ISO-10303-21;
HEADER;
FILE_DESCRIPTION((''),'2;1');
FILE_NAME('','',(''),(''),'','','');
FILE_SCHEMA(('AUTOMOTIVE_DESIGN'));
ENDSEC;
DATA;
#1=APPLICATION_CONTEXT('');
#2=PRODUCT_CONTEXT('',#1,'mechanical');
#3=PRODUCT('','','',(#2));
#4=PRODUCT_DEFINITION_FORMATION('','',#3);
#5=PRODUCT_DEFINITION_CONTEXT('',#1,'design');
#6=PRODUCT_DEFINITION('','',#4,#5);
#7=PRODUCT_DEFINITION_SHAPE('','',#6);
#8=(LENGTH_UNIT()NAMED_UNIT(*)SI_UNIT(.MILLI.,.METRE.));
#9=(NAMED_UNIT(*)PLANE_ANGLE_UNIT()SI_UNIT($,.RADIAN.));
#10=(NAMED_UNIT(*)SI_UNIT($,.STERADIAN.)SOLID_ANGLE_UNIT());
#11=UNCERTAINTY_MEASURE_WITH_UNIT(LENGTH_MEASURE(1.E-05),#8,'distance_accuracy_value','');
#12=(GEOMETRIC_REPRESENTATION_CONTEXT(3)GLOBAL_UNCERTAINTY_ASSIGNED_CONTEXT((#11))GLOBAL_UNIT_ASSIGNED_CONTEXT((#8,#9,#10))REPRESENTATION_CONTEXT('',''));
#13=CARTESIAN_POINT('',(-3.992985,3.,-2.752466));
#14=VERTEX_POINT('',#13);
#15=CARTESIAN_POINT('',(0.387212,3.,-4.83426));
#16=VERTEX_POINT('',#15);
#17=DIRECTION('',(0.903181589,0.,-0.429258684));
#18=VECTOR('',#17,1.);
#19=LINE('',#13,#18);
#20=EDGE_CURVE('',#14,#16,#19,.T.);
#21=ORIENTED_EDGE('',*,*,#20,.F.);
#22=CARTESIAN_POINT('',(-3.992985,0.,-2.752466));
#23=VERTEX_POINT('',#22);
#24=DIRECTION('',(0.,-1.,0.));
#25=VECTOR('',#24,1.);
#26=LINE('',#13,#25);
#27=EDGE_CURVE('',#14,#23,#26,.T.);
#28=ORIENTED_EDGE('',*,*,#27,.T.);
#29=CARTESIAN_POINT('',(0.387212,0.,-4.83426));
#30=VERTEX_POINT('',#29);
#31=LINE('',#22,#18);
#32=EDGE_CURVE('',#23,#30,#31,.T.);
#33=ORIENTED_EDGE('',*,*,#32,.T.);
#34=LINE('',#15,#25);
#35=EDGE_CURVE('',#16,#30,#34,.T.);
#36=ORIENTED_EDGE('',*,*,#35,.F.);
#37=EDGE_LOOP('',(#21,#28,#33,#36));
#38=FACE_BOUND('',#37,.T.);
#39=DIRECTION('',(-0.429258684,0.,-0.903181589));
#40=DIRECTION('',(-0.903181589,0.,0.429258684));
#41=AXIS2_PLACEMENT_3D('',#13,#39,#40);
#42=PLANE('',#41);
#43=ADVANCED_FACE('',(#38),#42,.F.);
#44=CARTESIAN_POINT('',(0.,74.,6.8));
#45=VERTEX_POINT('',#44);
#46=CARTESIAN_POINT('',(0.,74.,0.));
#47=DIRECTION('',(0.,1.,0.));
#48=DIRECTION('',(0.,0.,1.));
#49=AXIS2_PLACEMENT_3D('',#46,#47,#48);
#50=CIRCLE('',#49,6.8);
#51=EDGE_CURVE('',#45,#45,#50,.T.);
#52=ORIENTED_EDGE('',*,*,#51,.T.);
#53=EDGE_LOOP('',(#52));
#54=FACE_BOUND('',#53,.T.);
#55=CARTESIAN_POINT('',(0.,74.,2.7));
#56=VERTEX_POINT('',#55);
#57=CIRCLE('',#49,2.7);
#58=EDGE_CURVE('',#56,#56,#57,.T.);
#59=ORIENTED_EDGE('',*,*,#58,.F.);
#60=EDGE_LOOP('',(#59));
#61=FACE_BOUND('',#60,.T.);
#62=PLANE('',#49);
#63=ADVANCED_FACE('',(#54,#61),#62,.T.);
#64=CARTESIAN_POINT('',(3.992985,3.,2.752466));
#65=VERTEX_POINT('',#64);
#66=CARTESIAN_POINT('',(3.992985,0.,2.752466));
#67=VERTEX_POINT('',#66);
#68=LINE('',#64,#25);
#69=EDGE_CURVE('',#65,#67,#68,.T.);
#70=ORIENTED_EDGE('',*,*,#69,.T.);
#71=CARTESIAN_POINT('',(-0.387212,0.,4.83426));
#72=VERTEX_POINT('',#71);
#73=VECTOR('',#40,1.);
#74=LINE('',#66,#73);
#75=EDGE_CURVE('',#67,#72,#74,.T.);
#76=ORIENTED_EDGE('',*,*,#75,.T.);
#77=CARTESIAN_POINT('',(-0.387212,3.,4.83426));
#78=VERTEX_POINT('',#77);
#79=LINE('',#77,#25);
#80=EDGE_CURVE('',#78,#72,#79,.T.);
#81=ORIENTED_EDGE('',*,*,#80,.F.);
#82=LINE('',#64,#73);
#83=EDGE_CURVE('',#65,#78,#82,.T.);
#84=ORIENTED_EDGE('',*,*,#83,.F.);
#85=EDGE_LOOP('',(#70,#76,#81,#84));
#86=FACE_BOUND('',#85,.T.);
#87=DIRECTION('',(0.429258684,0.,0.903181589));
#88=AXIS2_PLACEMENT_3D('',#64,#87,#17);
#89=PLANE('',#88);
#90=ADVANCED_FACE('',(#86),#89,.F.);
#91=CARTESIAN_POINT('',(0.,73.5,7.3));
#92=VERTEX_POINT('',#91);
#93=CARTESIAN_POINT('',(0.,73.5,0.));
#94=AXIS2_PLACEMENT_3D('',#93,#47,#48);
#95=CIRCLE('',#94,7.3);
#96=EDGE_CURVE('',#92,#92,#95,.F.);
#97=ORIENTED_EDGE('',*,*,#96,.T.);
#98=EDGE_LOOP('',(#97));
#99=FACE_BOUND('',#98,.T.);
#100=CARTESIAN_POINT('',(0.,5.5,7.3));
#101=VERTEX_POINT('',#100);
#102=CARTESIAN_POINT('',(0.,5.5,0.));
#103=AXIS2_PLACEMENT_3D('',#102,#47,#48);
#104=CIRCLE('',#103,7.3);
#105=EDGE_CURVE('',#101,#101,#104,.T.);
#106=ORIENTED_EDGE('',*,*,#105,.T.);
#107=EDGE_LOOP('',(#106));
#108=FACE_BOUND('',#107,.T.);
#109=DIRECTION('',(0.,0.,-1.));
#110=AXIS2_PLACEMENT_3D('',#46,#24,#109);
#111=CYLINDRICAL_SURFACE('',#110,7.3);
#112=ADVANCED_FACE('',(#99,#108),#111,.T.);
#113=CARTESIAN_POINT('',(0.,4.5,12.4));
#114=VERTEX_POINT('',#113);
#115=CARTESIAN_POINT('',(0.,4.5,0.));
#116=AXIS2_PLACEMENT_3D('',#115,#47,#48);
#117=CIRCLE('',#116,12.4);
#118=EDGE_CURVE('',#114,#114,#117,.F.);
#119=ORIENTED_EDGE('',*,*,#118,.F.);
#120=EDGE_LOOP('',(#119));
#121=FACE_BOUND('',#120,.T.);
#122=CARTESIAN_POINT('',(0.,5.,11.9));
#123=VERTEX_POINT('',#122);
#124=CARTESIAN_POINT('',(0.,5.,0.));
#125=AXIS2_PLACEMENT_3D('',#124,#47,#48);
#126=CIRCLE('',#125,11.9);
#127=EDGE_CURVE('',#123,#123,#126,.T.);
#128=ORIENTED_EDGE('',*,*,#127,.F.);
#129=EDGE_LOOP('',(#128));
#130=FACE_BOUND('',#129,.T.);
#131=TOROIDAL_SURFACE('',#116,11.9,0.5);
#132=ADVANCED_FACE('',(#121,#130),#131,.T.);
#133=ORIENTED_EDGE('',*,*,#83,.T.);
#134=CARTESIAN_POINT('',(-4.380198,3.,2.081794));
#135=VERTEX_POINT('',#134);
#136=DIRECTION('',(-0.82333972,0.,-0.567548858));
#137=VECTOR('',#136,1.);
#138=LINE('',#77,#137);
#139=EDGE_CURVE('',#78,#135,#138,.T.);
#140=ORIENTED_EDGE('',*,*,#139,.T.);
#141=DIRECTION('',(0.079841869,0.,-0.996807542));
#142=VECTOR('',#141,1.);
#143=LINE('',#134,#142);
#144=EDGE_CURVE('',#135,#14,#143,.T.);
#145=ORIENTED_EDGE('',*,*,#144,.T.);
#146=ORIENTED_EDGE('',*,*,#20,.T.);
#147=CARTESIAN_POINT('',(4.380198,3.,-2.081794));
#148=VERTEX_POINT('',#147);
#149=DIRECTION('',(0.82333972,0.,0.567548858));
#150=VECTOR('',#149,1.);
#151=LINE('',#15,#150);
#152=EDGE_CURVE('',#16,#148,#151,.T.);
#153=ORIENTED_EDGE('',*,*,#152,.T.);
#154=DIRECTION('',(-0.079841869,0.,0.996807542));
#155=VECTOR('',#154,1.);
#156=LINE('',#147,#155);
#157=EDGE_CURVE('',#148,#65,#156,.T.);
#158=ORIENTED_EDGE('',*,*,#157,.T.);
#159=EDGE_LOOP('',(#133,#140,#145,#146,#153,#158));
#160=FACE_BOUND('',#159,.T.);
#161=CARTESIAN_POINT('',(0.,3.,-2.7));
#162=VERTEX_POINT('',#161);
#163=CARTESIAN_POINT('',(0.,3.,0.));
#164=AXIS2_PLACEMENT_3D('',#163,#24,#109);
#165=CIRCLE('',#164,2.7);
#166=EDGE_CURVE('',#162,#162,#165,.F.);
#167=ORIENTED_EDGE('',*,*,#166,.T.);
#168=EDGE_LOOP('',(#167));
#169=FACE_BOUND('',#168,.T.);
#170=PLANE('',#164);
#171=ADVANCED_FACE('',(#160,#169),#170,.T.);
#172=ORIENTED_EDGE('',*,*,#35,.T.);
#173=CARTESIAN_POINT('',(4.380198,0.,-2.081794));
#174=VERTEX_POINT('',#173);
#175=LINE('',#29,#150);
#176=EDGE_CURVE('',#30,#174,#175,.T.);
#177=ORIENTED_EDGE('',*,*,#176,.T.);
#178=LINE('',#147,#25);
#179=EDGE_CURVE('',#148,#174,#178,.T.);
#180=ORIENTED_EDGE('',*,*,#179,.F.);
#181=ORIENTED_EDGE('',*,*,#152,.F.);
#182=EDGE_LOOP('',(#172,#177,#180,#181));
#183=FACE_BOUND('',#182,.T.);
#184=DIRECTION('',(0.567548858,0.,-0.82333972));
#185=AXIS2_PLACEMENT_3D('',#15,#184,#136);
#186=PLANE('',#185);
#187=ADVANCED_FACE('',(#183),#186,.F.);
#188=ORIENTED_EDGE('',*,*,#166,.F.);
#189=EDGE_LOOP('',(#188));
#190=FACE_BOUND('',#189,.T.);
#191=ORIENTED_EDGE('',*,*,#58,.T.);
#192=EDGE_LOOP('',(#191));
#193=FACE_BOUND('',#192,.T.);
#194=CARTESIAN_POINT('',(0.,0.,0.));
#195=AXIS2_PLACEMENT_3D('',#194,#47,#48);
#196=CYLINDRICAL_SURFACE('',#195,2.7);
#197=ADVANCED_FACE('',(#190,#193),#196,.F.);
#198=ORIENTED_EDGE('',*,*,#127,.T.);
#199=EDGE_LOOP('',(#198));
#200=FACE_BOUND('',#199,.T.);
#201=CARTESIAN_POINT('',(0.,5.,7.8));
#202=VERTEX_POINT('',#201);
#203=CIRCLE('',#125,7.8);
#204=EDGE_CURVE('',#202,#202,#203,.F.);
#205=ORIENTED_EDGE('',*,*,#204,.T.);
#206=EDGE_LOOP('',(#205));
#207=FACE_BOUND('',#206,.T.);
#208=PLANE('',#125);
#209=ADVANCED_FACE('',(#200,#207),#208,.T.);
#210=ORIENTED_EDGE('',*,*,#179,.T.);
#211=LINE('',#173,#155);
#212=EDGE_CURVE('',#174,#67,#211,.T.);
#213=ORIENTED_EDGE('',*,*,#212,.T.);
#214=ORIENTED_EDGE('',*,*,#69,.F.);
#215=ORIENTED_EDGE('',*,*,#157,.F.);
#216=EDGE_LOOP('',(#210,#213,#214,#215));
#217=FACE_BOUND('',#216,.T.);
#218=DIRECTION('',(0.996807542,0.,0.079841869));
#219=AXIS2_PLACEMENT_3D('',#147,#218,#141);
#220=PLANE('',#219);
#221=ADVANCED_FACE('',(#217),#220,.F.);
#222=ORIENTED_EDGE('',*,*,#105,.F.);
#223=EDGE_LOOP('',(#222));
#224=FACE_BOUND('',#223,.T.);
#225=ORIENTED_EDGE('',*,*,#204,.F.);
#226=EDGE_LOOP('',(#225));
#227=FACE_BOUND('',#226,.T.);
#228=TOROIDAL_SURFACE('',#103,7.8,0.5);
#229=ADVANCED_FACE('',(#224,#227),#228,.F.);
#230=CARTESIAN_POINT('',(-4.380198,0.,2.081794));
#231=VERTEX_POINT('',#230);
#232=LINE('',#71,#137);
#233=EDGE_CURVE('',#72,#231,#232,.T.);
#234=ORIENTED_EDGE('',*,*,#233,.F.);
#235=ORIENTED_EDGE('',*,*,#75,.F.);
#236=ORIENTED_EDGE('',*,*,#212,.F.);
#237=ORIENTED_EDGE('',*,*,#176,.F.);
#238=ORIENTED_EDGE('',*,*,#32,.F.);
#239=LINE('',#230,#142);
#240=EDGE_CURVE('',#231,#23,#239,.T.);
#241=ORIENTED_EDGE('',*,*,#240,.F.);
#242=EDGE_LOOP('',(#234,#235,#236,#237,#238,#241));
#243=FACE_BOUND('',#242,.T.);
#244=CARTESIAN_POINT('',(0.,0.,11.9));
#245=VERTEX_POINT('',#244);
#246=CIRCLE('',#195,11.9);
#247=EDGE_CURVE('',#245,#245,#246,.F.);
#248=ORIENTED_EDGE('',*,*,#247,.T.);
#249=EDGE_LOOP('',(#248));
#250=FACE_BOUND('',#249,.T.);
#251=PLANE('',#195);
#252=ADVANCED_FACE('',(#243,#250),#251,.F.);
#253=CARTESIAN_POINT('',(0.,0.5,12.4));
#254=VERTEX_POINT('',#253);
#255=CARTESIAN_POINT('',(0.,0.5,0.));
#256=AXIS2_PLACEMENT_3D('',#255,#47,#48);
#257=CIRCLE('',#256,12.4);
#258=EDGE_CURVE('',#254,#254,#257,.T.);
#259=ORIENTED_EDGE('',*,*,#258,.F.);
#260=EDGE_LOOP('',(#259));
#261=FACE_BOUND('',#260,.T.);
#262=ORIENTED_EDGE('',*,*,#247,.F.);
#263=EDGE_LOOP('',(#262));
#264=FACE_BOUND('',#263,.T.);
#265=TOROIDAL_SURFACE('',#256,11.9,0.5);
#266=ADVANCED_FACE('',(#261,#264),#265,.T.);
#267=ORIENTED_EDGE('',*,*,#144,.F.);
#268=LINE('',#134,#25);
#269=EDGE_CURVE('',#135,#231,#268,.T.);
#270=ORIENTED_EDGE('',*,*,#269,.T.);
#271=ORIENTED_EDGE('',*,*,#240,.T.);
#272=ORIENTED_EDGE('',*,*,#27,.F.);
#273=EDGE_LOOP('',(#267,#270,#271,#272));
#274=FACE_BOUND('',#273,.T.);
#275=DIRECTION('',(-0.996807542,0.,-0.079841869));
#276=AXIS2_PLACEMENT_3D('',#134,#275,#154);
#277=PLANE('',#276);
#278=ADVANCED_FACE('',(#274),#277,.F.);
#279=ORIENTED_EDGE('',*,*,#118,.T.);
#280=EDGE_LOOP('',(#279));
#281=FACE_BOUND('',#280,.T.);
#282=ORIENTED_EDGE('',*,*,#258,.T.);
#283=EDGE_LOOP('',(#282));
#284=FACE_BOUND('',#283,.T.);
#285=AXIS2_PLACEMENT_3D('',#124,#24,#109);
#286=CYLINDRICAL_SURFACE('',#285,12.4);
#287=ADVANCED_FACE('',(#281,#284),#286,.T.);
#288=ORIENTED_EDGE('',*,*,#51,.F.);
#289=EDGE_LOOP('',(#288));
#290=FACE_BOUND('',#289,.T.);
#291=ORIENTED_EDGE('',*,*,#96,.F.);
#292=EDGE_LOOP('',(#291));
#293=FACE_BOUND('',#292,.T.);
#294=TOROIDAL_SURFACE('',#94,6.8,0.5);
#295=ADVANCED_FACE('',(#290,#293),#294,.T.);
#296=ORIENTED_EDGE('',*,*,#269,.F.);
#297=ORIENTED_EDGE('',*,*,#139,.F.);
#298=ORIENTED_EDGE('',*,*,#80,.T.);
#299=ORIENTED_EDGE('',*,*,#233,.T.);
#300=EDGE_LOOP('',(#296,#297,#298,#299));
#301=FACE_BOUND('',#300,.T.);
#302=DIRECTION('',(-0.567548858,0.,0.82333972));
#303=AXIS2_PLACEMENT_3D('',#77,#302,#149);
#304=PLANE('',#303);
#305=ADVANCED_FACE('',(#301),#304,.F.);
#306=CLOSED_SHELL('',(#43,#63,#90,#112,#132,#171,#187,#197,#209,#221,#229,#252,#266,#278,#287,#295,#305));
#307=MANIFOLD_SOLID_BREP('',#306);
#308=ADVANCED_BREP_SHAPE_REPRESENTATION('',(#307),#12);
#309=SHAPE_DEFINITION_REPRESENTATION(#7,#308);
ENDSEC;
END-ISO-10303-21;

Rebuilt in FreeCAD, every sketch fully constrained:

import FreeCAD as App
import Part
import Sketcher
Q = App.Units.Quantity


def edges_at(feature, points):
    """Names of the edges that pass closest to the given points."""
    edges = feature.Shape.Edges
    near = lambda p: min(range(len(edges)), key=lambda i: edges[i].distToShape(Part.Vertex(*p))[0])
    return sorted({f"Edge{near(p) + 1}" for p in points})

doc = App.newDocument("Part")
body = doc.addObject("PartDesign::Body", "Body")

# Sketch on XZ plane
sketch1 = body.newObject("Sketcher::SketchObject", "Sketch")
sketch1.AttachmentSupport = (doc.getObject("XZ_Plane"), [""])
sketch1.MapMode = "FlatFace"
sketch1.addGeometry(Part.Circle(App.Vector(0, 0, 0), App.Vector(0, 0, 1), 12), False)
sketch1.addConstraint(Sketcher.Constraint("Coincident", 0, 3, -1, 1))
sketch1.addConstraint(Sketcher.Constraint("Diameter", 0, Q("24.8 mm")))
pad1 = body.newObject("PartDesign::Pad", "Pad")
pad1.Profile = sketch1
pad1.Length = 5
pad1.Reversed = True

# Sketch on XZ plane
sketch2 = body.newObject("Sketcher::SketchObject", "Sketch001")
sketch2.AttachmentSupport = (doc.getObject("XZ_Plane"), [""])
sketch2.MapMode = "FlatFace"
sketch2.AttachmentOffset = App.Placement(App.Vector(0, 0, -5), App.Rotation())
sketch2.addGeometry(Part.Circle(App.Vector(0, 0, 0), App.Vector(0, 0, 1), 7), False)
sketch2.addConstraint(Sketcher.Constraint("Coincident", 0, 3, -1, 1))
sketch2.addConstraint(Sketcher.Constraint("Diameter", 0, Q("14.6 mm")))
pad2 = body.newObject("PartDesign::Pad", "Pad001")
pad2.Profile = sketch2
pad2.Length = 69
pad2.Reversed = True

# Sketch on XZ plane
sketch3 = body.newObject("Sketcher::SketchObject", "Sketch002")
sketch3.AttachmentSupport = (doc.getObject("XZ_Plane"), [""])
sketch3.MapMode = "FlatFace"
sketch3.AttachmentOffset = App.Placement(App.Vector(0, 0, -74), App.Rotation())
sketch3.addGeometry(Part.Circle(App.Vector(0, 0, 0), App.Vector(0, 0, 1), 2.7), False)
sketch3.addConstraint(Sketcher.Constraint("Coincident", 0, 3, -1, 1))
sketch3.addConstraint(Sketcher.Constraint("Diameter", 0, Q("5.4 mm")))
pocket1 = body.newObject("PartDesign::Pocket", "Pocket")
pocket1.Profile = sketch3
pocket1.Type = "ThroughAll"
pocket1.Reversed = True

# Sketch on XZ plane
sketch4 = body.newObject("Sketcher::SketchObject", "Sketch003")
sketch4.AttachmentSupport = (doc.getObject("XZ_Plane"), [""])
sketch4.MapMode = "FlatFace"
sketch4.addGeometry(Part.LineSegment(App.Vector(-4.4, 2.1, 0), App.Vector(-4, -2.8, 0)), False)
sketch4.addGeometry(Part.LineSegment(App.Vector(-4, -2.8, 0), App.Vector(0.4, -4.8, 0)), False)
sketch4.addGeometry(Part.LineSegment(App.Vector(0.4, -4.8, 0), App.Vector(4.4, -2.1, 0)), False)
sketch4.addGeometry(Part.LineSegment(App.Vector(4.4, -2.1, 0), App.Vector(4, 2.8, 0)), False)
sketch4.addGeometry(Part.LineSegment(App.Vector(4, 2.8, 0), App.Vector(-0.4, 4.8, 0)), False)
sketch4.addGeometry(Part.LineSegment(App.Vector(-0.4, 4.8, 0), App.Vector(-4.4, 2.1, 0)), False)
sketch4.addConstraint(Sketcher.Constraint("Coincident", 0, 2, 1, 1))
sketch4.addConstraint(Sketcher.Constraint("Coincident", 1, 2, 2, 1))
sketch4.addConstraint(Sketcher.Constraint("Coincident", 2, 2, 3, 1))
sketch4.addConstraint(Sketcher.Constraint("Coincident", 3, 2, 4, 1))
sketch4.addConstraint(Sketcher.Constraint("Coincident", 4, 2, 5, 1))
sketch4.addConstraint(Sketcher.Constraint("Coincident", 5, 2, 0, 1))
sketch4.addConstraint(Sketcher.Constraint("Symmetric", 0, 2, 3, 2, -1, 1))
sketch4.addConstraint(Sketcher.Constraint("Symmetric", 1, 2, 4, 2, -1, 1))
sketch4.addConstraint(Sketcher.Constraint("Symmetric", 2, 2, 5, 2, -1, 1))
sketch4.addConstraint(Sketcher.Constraint("Equal", 0, 1))
sketch4.addConstraint(Sketcher.Constraint("Equal", 1, 2))
sketch4.addConstraint(Sketcher.Constraint("DistanceY", 1, 2, -1, 1, Q("4.83426 mm")))
sketch4.addConstraint(Sketcher.Constraint("DistanceY", 0, 2, 2, 2, Q("0.670672 mm")))
sketch4.addConstraint(Sketcher.Constraint("DistanceY", 2, 2, 3, 2, Q("4.83426 mm")))
sketch4.addConstraint(Sketcher.Constraint("DistanceX", 0, 2, 3, 2, Q("7.985971 mm")))
pocket2 = body.newObject("PartDesign::Pocket", "Pocket001")
pocket2.Profile = sketch4
pocket2.Length = 3
doc.recompute()

fillet = body.newObject("PartDesign::Fillet", "Fillet")
fillet.Base = (pocket2, edges_at(pocket2, [
    (-12.4, 0, 0),
    (-12.4, 5, 0),
    (-7.3, 5, 0),
    (-7.3, 74, 0),
]))
fillet.Radius = 0.5

doc.recompute()
